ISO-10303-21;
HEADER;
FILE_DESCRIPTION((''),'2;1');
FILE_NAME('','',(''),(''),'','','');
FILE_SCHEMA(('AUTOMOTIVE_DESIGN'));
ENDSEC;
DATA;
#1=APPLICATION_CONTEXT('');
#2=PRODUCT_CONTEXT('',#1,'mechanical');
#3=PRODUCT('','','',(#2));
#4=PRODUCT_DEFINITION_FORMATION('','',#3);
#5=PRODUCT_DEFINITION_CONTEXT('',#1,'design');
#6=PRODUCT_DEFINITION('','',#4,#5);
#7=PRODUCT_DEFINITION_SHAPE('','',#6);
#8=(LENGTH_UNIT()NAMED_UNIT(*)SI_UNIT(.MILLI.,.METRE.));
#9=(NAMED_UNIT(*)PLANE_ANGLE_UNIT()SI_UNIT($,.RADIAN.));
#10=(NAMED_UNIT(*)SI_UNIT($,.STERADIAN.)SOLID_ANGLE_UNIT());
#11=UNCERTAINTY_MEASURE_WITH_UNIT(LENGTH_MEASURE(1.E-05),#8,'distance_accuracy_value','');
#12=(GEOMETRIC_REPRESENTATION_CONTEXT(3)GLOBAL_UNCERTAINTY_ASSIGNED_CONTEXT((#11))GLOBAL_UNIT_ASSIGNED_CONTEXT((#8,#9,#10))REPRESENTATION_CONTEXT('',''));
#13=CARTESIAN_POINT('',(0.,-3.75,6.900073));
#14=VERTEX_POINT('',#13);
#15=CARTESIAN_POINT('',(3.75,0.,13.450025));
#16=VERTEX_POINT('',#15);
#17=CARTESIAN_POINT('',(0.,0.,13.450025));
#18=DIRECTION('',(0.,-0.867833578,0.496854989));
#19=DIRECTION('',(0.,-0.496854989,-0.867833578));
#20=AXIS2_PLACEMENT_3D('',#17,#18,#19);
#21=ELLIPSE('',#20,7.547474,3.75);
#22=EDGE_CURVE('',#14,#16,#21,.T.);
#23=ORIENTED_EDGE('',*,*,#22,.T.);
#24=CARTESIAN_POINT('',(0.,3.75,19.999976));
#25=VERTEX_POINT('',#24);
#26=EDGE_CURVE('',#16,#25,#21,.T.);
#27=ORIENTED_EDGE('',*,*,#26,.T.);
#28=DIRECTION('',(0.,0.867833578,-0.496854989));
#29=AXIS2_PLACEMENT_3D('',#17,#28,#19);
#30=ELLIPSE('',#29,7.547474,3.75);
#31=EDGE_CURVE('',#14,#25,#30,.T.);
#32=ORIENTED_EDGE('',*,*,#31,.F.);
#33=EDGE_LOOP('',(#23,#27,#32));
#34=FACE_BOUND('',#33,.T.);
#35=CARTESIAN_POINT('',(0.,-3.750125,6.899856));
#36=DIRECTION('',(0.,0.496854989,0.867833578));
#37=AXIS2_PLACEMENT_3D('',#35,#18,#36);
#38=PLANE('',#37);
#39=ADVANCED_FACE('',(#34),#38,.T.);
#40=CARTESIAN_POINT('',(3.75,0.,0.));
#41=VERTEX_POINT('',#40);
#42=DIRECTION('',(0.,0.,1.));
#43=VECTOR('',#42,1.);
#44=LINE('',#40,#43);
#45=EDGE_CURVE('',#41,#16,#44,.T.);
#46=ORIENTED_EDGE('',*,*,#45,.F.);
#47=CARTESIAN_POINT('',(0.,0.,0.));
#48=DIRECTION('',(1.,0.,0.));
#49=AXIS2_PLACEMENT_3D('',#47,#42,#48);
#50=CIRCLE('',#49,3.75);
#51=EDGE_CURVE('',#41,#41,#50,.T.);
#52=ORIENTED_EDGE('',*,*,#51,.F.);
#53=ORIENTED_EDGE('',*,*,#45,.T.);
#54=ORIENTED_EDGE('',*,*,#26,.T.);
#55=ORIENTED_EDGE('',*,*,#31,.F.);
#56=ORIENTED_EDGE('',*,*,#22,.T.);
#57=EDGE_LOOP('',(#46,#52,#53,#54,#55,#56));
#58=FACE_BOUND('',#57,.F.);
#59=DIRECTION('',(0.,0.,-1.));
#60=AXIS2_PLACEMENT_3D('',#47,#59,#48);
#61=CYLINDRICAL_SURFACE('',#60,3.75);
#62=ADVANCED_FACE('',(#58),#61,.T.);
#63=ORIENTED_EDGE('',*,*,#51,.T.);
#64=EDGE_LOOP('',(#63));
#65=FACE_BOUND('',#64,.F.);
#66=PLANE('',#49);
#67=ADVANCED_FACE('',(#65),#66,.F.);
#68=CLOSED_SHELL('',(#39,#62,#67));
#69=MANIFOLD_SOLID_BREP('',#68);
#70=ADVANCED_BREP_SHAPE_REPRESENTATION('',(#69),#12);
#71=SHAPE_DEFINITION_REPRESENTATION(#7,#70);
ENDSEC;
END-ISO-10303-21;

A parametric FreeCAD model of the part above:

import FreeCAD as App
import Part
import Sketcher
from FreeCAD import Vector
Q = App.Units.Quantity

doc = App.newDocument("Part")
body = doc.addObject("PartDesign::Body", "Body")

sketch1 = body.newObject("Sketcher::SketchObject", "Sketch")
sketch1.AttachmentSupport = (doc.getObject("XY_Plane"), [""])
sketch1.MapMode = "FlatFace"
sketch1.addGeometry(Part.Circle(Vector(0, 0, 0), Vector(0, 0, 1), 3.8), False)
sketch1.addConstraint(Sketcher.Constraint("Coincident", 0, 3, -1, 1))
sketch1.addConstraint(Sketcher.Constraint("Diameter", 0, Q("7.5 mm")))
pad1 = body.newObject("PartDesign::Pad", "Pad")
pad1.Profile = sketch1
pad1.Length = 20

sketch2 = body.newObject("Sketcher::SketchObject", "Sketch001")
sketch2.AttachmentSupport = (doc.getObject("YZ_Plane"), [""])
sketch2.MapMode = "FlatFace"
sketch2.addGeometry(Part.LineSegment(Vector(-4, 7, 0), Vector(4, 20, 0)), False)
sketch2.addGeometry(Part.LineSegment(Vector(4, 20, 0), Vector(4, 47, 0)), False)
sketch2.addGeometry(Part.LineSegment(Vector(4, 47, 0), Vector(-17, 39, 0)), False)
sketch2.addGeometry(Part.LineSegment(Vector(-17, 39, 0), Vector(-4, 7, 0)), False)
sketch2.addConstraint(Sketcher.Constraint("Coincident", 0, 2, 1, 1))
sketch2.addConstraint(Sketcher.Constraint("Coincident", 1, 2, 2, 1))
sketch2.addConstraint(Sketcher.Constraint("Coincident", 2, 2, 3, 1))
sketch2.addConstraint(Sketcher.Constraint("Coincident", 3, 2, 0, 1))
sketch2.addConstraint(Sketcher.Constraint("Perpendicular", 2, 3))
sketch2.addConstraint(Sketcher.Constraint("DistanceY", -1, 1, 0, 2, Q("20 mm")))
sketch2.addConstraint(Sketcher.Constraint("DistanceX", -1, 1, 1, 2, Q("4.063932 mm")))
sketch2.addConstraint(Sketcher.Constraint("DistanceY", -1, 1, 1, 2, Q("47.32003 mm")))
sketch2.addConstraint(Sketcher.Constraint("DistanceX", 2, 2, -1, 1, Q("16.84262 mm")))
sketch2.addConstraint(Sketcher.Constraint("DistanceY", -1, 1, 2, 2, Q("38.717211 mm")))
sketch2.addConstraint(Sketcher.Constraint("DistanceX", 3, 2, 0, 2, Q("7.500139 mm")))
sketch2.addConstraint(Sketcher.Constraint("Distance", 0, Q("15.095227 mm")))
pocket1 = body.newObject("PartDesign::Pocket", "Pocket")
pocket1.Profile = sketch2
pocket1.Type = "ThroughAll"
pocket1.Midplane = True

doc.recompute()
